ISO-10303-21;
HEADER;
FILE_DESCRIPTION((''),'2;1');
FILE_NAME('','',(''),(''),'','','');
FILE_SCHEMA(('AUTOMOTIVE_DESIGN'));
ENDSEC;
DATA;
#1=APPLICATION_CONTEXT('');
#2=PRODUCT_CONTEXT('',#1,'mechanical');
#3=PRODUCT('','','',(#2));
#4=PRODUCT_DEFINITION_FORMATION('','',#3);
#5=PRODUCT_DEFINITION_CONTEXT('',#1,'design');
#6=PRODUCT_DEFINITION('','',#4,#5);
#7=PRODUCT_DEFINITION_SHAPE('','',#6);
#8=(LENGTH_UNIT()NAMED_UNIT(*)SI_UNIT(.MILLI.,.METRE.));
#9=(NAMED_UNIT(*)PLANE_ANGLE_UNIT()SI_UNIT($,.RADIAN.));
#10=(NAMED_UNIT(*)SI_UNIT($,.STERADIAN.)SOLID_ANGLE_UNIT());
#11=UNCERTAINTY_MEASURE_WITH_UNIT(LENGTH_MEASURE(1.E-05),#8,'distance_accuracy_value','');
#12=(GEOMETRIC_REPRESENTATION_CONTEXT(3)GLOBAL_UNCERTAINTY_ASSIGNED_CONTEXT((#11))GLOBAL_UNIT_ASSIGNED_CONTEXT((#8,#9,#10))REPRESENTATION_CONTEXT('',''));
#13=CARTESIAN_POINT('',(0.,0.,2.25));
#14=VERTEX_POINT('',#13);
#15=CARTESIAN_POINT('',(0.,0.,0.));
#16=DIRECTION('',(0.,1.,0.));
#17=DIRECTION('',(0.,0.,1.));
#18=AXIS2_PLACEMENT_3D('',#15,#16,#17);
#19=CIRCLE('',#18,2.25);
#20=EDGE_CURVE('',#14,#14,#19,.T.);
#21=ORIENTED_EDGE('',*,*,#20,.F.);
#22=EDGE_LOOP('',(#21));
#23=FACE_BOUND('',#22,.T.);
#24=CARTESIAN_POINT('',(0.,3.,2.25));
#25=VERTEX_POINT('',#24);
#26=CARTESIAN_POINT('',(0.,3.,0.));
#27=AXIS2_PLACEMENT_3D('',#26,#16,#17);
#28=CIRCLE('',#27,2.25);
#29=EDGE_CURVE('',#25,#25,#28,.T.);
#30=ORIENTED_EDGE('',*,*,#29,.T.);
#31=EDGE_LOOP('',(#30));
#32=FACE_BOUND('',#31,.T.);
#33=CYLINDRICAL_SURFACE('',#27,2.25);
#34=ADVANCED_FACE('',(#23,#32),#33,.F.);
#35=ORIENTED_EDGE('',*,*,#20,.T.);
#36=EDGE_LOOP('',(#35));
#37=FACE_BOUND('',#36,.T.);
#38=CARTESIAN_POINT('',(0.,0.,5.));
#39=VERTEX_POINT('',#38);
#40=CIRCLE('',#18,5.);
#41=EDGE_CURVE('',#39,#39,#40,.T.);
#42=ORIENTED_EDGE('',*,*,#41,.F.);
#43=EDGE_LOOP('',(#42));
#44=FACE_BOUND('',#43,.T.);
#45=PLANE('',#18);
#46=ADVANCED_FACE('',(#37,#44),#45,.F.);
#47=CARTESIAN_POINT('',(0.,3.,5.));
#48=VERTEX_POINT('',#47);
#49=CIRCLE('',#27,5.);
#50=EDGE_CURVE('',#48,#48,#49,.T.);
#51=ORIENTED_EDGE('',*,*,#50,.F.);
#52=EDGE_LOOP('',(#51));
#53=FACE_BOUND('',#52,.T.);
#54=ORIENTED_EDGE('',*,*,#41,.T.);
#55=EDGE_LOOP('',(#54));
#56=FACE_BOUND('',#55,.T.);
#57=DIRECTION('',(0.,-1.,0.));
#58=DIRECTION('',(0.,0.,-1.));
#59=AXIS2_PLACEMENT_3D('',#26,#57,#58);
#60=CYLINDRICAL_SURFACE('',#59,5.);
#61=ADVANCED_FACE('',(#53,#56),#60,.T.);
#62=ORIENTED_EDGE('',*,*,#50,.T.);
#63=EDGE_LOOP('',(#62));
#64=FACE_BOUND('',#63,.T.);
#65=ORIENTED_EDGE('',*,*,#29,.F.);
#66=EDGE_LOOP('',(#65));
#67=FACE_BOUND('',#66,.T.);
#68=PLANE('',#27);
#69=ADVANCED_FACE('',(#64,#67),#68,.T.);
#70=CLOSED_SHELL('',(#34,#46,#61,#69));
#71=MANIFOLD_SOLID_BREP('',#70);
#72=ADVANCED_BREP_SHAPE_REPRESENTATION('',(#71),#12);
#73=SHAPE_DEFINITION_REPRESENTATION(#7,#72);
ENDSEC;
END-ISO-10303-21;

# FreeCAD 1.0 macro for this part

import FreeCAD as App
import Part
import Sketcher
from FreeCAD import Vector
Q = App.Units.Quantity

doc = App.newDocument("Part")
body = doc.addObject("PartDesign::Body", "Body")

sketch1 = body.newObject("Sketcher::SketchObject", "Sketch")
sketch1.AttachmentSupport = (doc.getObject("XZ_Plane"), [""])
sketch1.MapMode = "FlatFace"
sketch1.addGeometry(Part.Circle(Vector(0, 0, 0), Vector(0, 0, 1), 5), False)
sketch1.addConstraint(Sketcher.Constraint("Coincident", 0, 3, -1, 1))
sketch1.addConstraint(Sketcher.Constraint("Diameter", 0, Q("10 mm")))
pad1 = body.newObject("PartDesign::Pad", "Pad")
pad1.Profile = sketch1
pad1.Length = 3
pad1.Reversed = True

sketch2 = body.newObject("Sketcher::SketchObject", "Sketch001")
sketch2.AttachmentSupport = (doc.getObject("XZ_Plane"), [""])
sketch2.MapMode = "FlatFace"
sketch2.AttachmentOffset = App.Placement(Vector(0, 0, -3), App.Rotation())
sketch2.addGeometry(Part.Circle(Vector(0, 0, 0), Vector(0, 0, 1), 2.2), False)
sketch2.addConstraint(Sketcher.Constraint("Coincident", 0, 3, -1, 1))
sketch2.addConstraint(Sketcher.Constraint("Diameter", 0, Q("4.5 mm")))
doc.recompute()
hole = body.newObject("PartDesign::Hole", "Hole")
hole.Profile = sketch2
hole.ThreadType = "None"
hole.Diameter = 4.5
hole.DepthType = "ThroughAll"
hole.Reversed = True

doc.recompute()
